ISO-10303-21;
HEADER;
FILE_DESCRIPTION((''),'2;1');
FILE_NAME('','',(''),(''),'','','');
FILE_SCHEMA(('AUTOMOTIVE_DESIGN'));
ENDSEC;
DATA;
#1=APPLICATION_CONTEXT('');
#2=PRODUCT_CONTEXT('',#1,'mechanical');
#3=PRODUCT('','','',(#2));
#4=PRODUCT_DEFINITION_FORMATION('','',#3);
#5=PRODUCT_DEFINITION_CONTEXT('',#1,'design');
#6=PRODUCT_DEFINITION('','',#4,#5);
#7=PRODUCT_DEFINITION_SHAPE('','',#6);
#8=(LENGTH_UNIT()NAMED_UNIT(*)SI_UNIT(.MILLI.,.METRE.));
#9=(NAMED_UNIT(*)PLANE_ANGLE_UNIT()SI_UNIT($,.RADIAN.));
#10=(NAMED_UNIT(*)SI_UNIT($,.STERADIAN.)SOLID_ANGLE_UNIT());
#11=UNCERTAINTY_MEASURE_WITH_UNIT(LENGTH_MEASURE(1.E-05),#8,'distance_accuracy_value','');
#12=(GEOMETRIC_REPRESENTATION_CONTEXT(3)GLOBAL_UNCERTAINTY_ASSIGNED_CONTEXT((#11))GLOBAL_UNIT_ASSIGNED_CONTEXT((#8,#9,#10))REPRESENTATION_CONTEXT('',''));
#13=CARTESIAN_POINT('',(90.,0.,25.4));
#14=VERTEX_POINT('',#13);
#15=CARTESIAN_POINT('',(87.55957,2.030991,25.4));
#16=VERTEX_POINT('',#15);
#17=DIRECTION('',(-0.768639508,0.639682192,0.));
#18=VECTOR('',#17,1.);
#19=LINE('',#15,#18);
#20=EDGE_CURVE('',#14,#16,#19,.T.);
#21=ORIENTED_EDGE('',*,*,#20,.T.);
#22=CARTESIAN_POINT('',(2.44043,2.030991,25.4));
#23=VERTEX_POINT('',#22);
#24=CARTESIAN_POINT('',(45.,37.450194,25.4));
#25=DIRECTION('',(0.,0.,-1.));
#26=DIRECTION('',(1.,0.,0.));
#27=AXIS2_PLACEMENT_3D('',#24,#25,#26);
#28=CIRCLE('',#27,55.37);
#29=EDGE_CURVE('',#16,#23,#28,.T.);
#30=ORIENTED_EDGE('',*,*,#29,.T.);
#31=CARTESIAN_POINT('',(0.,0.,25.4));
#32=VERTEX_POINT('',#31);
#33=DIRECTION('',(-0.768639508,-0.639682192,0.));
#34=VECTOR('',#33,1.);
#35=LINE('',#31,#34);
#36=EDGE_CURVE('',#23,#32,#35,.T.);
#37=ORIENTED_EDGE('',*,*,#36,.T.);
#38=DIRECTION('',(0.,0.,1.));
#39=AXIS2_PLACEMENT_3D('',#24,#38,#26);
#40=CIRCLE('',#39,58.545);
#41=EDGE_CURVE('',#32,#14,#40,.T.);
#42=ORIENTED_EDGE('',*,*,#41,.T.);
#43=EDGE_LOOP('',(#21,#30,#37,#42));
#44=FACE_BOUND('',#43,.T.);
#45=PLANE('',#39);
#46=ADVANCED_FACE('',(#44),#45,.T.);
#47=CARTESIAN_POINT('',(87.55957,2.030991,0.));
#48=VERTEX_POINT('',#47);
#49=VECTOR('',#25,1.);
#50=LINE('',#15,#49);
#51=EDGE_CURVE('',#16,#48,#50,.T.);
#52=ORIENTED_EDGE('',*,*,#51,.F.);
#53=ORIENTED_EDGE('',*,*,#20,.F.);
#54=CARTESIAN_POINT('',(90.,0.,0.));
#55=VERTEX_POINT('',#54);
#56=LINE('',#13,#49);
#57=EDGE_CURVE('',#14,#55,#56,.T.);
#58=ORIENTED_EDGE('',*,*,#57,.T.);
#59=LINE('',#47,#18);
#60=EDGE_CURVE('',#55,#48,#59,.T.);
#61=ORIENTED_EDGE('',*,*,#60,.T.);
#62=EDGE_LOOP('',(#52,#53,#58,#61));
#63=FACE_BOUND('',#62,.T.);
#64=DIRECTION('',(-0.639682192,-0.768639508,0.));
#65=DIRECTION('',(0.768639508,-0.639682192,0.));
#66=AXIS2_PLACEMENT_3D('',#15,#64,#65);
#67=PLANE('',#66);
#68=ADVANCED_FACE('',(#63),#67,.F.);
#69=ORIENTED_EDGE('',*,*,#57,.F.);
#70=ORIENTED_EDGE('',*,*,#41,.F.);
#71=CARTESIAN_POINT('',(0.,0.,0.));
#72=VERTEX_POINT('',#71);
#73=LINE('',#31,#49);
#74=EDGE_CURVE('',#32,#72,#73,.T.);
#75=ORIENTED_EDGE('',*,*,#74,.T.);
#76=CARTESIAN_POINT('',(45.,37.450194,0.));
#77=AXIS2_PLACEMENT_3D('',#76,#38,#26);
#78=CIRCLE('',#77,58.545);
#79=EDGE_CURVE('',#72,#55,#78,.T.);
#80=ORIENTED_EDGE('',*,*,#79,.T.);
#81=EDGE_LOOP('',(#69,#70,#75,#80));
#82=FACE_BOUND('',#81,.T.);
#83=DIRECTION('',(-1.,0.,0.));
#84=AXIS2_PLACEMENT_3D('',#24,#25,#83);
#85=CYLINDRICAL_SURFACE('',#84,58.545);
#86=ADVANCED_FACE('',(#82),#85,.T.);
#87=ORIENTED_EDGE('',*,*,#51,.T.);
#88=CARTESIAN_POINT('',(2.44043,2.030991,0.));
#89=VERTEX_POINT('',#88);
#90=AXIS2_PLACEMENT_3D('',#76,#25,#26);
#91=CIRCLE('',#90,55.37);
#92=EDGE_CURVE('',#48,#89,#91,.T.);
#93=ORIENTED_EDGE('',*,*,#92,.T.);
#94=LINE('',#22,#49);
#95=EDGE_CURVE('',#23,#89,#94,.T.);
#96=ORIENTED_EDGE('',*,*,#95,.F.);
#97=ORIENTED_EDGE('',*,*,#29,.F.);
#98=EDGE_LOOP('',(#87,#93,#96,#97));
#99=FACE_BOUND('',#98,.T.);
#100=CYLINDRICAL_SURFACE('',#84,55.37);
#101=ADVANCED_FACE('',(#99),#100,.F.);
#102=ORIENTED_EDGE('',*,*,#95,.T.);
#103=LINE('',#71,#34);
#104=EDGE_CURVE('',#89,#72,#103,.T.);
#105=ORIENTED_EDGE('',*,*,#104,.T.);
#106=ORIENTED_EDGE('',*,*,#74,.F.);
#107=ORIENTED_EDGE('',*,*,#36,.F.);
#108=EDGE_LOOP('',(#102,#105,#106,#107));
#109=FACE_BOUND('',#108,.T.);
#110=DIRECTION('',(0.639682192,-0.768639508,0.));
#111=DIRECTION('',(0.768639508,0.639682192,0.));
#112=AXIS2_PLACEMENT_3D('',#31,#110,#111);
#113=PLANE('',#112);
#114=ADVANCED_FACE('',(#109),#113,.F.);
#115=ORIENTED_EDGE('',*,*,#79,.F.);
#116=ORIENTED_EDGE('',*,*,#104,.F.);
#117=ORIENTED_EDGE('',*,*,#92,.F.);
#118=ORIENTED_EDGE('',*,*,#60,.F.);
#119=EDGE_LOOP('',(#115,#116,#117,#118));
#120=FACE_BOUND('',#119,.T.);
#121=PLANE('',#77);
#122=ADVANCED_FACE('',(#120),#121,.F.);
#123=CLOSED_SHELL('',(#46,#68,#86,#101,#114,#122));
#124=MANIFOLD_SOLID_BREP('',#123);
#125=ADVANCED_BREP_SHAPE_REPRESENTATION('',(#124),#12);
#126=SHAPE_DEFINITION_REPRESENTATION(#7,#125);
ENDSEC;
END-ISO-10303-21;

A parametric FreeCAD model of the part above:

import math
import FreeCAD as App
import Part
import Sketcher
from FreeCAD import Vector

doc = App.newDocument("Part")
params = doc.addObject("Spreadsheet::Sheet", "Params")
for row, (alias, value) in enumerate([
    ("pad1_length", "1 in"),
], start=1):
    params.set(f"A{row}", alias)
    params.set(f"B{row}", "=" + value)
    params.setAlias(f"B{row}", alias)

body = doc.addObject("PartDesign::Body", "Body")

# Sketch on XY plane
sketch1 = body.newObject("Sketcher::SketchObject", "Sketch")
sketch1.AttachmentSupport = (doc.getObject("XY_Plane"), [""])
sketch1.MapMode = "FlatFace"
sketch1.addGeometry(Part.LineSegment(Vector(2.4, 2, 0), Vector(0, 0, 0)), False)
sketch1.addGeometry(Part.ArcOfCircle(Part.Circle(Vector(45, 37.5, 0), Vector(0, 0, 1), 58.5), math.radians(-140), math.radians(-40)), False)
sketch1.addGeometry(Part.LineSegment(Vector(90, 0, 0), Vector(87.6, 2, 0)), False)
sketch1.addGeometry(Part.ArcOfCircle(Part.Circle(Vector(45, 37.5, 0), Vector(0, 0, 1), 55.4), math.radians(-140), math.radians(-40)), False)
sketch1.addConstraint(Sketcher.Constraint("Coincident", 0, 2, 1, 1))
sketch1.addConstraint(Sketcher.Constraint("Coincident", 1, 2, 2, 1))
sketch1.addConstraint(Sketcher.Constraint("Coincident", 2, 2, 3, 2))
sketch1.addConstraint(Sketcher.Constraint("Coincident", 3, 1, 0, 1))
sketch1.addConstraint(Sketcher.Constraint("Coincident", 0, 2, -1, 1))
sketch1.addConstraint(Sketcher.Constraint("Coincident", 3, 3, 1, 3))
sketch1.addConstraint(Sketcher.Constraint("PointOnObject", 1, 2, -1))
sketch1.addConstraint(Sketcher.Constraint("Horizontal", 2, 2, 3, 1))
sketch1.addConstraint(Sketcher.Constraint("Radius", 1, 58.545))
sketch1.addConstraint(Sketcher.Constraint("Radius", 3, 55.37))
sketch1.addConstraint(Sketcher.Constraint("DistanceX", -1, 1, 1, 3, 45.0))
sketch1.addConstraint(Sketcher.Constraint("DistanceX", -1, 1, 2, 2, 87.55957))
pad1 = body.newObject("PartDesign::Pad", "Pad")
pad1.Profile = sketch1
pad1.setExpression("Length", "Params.pad1_length")

doc.recompute()
